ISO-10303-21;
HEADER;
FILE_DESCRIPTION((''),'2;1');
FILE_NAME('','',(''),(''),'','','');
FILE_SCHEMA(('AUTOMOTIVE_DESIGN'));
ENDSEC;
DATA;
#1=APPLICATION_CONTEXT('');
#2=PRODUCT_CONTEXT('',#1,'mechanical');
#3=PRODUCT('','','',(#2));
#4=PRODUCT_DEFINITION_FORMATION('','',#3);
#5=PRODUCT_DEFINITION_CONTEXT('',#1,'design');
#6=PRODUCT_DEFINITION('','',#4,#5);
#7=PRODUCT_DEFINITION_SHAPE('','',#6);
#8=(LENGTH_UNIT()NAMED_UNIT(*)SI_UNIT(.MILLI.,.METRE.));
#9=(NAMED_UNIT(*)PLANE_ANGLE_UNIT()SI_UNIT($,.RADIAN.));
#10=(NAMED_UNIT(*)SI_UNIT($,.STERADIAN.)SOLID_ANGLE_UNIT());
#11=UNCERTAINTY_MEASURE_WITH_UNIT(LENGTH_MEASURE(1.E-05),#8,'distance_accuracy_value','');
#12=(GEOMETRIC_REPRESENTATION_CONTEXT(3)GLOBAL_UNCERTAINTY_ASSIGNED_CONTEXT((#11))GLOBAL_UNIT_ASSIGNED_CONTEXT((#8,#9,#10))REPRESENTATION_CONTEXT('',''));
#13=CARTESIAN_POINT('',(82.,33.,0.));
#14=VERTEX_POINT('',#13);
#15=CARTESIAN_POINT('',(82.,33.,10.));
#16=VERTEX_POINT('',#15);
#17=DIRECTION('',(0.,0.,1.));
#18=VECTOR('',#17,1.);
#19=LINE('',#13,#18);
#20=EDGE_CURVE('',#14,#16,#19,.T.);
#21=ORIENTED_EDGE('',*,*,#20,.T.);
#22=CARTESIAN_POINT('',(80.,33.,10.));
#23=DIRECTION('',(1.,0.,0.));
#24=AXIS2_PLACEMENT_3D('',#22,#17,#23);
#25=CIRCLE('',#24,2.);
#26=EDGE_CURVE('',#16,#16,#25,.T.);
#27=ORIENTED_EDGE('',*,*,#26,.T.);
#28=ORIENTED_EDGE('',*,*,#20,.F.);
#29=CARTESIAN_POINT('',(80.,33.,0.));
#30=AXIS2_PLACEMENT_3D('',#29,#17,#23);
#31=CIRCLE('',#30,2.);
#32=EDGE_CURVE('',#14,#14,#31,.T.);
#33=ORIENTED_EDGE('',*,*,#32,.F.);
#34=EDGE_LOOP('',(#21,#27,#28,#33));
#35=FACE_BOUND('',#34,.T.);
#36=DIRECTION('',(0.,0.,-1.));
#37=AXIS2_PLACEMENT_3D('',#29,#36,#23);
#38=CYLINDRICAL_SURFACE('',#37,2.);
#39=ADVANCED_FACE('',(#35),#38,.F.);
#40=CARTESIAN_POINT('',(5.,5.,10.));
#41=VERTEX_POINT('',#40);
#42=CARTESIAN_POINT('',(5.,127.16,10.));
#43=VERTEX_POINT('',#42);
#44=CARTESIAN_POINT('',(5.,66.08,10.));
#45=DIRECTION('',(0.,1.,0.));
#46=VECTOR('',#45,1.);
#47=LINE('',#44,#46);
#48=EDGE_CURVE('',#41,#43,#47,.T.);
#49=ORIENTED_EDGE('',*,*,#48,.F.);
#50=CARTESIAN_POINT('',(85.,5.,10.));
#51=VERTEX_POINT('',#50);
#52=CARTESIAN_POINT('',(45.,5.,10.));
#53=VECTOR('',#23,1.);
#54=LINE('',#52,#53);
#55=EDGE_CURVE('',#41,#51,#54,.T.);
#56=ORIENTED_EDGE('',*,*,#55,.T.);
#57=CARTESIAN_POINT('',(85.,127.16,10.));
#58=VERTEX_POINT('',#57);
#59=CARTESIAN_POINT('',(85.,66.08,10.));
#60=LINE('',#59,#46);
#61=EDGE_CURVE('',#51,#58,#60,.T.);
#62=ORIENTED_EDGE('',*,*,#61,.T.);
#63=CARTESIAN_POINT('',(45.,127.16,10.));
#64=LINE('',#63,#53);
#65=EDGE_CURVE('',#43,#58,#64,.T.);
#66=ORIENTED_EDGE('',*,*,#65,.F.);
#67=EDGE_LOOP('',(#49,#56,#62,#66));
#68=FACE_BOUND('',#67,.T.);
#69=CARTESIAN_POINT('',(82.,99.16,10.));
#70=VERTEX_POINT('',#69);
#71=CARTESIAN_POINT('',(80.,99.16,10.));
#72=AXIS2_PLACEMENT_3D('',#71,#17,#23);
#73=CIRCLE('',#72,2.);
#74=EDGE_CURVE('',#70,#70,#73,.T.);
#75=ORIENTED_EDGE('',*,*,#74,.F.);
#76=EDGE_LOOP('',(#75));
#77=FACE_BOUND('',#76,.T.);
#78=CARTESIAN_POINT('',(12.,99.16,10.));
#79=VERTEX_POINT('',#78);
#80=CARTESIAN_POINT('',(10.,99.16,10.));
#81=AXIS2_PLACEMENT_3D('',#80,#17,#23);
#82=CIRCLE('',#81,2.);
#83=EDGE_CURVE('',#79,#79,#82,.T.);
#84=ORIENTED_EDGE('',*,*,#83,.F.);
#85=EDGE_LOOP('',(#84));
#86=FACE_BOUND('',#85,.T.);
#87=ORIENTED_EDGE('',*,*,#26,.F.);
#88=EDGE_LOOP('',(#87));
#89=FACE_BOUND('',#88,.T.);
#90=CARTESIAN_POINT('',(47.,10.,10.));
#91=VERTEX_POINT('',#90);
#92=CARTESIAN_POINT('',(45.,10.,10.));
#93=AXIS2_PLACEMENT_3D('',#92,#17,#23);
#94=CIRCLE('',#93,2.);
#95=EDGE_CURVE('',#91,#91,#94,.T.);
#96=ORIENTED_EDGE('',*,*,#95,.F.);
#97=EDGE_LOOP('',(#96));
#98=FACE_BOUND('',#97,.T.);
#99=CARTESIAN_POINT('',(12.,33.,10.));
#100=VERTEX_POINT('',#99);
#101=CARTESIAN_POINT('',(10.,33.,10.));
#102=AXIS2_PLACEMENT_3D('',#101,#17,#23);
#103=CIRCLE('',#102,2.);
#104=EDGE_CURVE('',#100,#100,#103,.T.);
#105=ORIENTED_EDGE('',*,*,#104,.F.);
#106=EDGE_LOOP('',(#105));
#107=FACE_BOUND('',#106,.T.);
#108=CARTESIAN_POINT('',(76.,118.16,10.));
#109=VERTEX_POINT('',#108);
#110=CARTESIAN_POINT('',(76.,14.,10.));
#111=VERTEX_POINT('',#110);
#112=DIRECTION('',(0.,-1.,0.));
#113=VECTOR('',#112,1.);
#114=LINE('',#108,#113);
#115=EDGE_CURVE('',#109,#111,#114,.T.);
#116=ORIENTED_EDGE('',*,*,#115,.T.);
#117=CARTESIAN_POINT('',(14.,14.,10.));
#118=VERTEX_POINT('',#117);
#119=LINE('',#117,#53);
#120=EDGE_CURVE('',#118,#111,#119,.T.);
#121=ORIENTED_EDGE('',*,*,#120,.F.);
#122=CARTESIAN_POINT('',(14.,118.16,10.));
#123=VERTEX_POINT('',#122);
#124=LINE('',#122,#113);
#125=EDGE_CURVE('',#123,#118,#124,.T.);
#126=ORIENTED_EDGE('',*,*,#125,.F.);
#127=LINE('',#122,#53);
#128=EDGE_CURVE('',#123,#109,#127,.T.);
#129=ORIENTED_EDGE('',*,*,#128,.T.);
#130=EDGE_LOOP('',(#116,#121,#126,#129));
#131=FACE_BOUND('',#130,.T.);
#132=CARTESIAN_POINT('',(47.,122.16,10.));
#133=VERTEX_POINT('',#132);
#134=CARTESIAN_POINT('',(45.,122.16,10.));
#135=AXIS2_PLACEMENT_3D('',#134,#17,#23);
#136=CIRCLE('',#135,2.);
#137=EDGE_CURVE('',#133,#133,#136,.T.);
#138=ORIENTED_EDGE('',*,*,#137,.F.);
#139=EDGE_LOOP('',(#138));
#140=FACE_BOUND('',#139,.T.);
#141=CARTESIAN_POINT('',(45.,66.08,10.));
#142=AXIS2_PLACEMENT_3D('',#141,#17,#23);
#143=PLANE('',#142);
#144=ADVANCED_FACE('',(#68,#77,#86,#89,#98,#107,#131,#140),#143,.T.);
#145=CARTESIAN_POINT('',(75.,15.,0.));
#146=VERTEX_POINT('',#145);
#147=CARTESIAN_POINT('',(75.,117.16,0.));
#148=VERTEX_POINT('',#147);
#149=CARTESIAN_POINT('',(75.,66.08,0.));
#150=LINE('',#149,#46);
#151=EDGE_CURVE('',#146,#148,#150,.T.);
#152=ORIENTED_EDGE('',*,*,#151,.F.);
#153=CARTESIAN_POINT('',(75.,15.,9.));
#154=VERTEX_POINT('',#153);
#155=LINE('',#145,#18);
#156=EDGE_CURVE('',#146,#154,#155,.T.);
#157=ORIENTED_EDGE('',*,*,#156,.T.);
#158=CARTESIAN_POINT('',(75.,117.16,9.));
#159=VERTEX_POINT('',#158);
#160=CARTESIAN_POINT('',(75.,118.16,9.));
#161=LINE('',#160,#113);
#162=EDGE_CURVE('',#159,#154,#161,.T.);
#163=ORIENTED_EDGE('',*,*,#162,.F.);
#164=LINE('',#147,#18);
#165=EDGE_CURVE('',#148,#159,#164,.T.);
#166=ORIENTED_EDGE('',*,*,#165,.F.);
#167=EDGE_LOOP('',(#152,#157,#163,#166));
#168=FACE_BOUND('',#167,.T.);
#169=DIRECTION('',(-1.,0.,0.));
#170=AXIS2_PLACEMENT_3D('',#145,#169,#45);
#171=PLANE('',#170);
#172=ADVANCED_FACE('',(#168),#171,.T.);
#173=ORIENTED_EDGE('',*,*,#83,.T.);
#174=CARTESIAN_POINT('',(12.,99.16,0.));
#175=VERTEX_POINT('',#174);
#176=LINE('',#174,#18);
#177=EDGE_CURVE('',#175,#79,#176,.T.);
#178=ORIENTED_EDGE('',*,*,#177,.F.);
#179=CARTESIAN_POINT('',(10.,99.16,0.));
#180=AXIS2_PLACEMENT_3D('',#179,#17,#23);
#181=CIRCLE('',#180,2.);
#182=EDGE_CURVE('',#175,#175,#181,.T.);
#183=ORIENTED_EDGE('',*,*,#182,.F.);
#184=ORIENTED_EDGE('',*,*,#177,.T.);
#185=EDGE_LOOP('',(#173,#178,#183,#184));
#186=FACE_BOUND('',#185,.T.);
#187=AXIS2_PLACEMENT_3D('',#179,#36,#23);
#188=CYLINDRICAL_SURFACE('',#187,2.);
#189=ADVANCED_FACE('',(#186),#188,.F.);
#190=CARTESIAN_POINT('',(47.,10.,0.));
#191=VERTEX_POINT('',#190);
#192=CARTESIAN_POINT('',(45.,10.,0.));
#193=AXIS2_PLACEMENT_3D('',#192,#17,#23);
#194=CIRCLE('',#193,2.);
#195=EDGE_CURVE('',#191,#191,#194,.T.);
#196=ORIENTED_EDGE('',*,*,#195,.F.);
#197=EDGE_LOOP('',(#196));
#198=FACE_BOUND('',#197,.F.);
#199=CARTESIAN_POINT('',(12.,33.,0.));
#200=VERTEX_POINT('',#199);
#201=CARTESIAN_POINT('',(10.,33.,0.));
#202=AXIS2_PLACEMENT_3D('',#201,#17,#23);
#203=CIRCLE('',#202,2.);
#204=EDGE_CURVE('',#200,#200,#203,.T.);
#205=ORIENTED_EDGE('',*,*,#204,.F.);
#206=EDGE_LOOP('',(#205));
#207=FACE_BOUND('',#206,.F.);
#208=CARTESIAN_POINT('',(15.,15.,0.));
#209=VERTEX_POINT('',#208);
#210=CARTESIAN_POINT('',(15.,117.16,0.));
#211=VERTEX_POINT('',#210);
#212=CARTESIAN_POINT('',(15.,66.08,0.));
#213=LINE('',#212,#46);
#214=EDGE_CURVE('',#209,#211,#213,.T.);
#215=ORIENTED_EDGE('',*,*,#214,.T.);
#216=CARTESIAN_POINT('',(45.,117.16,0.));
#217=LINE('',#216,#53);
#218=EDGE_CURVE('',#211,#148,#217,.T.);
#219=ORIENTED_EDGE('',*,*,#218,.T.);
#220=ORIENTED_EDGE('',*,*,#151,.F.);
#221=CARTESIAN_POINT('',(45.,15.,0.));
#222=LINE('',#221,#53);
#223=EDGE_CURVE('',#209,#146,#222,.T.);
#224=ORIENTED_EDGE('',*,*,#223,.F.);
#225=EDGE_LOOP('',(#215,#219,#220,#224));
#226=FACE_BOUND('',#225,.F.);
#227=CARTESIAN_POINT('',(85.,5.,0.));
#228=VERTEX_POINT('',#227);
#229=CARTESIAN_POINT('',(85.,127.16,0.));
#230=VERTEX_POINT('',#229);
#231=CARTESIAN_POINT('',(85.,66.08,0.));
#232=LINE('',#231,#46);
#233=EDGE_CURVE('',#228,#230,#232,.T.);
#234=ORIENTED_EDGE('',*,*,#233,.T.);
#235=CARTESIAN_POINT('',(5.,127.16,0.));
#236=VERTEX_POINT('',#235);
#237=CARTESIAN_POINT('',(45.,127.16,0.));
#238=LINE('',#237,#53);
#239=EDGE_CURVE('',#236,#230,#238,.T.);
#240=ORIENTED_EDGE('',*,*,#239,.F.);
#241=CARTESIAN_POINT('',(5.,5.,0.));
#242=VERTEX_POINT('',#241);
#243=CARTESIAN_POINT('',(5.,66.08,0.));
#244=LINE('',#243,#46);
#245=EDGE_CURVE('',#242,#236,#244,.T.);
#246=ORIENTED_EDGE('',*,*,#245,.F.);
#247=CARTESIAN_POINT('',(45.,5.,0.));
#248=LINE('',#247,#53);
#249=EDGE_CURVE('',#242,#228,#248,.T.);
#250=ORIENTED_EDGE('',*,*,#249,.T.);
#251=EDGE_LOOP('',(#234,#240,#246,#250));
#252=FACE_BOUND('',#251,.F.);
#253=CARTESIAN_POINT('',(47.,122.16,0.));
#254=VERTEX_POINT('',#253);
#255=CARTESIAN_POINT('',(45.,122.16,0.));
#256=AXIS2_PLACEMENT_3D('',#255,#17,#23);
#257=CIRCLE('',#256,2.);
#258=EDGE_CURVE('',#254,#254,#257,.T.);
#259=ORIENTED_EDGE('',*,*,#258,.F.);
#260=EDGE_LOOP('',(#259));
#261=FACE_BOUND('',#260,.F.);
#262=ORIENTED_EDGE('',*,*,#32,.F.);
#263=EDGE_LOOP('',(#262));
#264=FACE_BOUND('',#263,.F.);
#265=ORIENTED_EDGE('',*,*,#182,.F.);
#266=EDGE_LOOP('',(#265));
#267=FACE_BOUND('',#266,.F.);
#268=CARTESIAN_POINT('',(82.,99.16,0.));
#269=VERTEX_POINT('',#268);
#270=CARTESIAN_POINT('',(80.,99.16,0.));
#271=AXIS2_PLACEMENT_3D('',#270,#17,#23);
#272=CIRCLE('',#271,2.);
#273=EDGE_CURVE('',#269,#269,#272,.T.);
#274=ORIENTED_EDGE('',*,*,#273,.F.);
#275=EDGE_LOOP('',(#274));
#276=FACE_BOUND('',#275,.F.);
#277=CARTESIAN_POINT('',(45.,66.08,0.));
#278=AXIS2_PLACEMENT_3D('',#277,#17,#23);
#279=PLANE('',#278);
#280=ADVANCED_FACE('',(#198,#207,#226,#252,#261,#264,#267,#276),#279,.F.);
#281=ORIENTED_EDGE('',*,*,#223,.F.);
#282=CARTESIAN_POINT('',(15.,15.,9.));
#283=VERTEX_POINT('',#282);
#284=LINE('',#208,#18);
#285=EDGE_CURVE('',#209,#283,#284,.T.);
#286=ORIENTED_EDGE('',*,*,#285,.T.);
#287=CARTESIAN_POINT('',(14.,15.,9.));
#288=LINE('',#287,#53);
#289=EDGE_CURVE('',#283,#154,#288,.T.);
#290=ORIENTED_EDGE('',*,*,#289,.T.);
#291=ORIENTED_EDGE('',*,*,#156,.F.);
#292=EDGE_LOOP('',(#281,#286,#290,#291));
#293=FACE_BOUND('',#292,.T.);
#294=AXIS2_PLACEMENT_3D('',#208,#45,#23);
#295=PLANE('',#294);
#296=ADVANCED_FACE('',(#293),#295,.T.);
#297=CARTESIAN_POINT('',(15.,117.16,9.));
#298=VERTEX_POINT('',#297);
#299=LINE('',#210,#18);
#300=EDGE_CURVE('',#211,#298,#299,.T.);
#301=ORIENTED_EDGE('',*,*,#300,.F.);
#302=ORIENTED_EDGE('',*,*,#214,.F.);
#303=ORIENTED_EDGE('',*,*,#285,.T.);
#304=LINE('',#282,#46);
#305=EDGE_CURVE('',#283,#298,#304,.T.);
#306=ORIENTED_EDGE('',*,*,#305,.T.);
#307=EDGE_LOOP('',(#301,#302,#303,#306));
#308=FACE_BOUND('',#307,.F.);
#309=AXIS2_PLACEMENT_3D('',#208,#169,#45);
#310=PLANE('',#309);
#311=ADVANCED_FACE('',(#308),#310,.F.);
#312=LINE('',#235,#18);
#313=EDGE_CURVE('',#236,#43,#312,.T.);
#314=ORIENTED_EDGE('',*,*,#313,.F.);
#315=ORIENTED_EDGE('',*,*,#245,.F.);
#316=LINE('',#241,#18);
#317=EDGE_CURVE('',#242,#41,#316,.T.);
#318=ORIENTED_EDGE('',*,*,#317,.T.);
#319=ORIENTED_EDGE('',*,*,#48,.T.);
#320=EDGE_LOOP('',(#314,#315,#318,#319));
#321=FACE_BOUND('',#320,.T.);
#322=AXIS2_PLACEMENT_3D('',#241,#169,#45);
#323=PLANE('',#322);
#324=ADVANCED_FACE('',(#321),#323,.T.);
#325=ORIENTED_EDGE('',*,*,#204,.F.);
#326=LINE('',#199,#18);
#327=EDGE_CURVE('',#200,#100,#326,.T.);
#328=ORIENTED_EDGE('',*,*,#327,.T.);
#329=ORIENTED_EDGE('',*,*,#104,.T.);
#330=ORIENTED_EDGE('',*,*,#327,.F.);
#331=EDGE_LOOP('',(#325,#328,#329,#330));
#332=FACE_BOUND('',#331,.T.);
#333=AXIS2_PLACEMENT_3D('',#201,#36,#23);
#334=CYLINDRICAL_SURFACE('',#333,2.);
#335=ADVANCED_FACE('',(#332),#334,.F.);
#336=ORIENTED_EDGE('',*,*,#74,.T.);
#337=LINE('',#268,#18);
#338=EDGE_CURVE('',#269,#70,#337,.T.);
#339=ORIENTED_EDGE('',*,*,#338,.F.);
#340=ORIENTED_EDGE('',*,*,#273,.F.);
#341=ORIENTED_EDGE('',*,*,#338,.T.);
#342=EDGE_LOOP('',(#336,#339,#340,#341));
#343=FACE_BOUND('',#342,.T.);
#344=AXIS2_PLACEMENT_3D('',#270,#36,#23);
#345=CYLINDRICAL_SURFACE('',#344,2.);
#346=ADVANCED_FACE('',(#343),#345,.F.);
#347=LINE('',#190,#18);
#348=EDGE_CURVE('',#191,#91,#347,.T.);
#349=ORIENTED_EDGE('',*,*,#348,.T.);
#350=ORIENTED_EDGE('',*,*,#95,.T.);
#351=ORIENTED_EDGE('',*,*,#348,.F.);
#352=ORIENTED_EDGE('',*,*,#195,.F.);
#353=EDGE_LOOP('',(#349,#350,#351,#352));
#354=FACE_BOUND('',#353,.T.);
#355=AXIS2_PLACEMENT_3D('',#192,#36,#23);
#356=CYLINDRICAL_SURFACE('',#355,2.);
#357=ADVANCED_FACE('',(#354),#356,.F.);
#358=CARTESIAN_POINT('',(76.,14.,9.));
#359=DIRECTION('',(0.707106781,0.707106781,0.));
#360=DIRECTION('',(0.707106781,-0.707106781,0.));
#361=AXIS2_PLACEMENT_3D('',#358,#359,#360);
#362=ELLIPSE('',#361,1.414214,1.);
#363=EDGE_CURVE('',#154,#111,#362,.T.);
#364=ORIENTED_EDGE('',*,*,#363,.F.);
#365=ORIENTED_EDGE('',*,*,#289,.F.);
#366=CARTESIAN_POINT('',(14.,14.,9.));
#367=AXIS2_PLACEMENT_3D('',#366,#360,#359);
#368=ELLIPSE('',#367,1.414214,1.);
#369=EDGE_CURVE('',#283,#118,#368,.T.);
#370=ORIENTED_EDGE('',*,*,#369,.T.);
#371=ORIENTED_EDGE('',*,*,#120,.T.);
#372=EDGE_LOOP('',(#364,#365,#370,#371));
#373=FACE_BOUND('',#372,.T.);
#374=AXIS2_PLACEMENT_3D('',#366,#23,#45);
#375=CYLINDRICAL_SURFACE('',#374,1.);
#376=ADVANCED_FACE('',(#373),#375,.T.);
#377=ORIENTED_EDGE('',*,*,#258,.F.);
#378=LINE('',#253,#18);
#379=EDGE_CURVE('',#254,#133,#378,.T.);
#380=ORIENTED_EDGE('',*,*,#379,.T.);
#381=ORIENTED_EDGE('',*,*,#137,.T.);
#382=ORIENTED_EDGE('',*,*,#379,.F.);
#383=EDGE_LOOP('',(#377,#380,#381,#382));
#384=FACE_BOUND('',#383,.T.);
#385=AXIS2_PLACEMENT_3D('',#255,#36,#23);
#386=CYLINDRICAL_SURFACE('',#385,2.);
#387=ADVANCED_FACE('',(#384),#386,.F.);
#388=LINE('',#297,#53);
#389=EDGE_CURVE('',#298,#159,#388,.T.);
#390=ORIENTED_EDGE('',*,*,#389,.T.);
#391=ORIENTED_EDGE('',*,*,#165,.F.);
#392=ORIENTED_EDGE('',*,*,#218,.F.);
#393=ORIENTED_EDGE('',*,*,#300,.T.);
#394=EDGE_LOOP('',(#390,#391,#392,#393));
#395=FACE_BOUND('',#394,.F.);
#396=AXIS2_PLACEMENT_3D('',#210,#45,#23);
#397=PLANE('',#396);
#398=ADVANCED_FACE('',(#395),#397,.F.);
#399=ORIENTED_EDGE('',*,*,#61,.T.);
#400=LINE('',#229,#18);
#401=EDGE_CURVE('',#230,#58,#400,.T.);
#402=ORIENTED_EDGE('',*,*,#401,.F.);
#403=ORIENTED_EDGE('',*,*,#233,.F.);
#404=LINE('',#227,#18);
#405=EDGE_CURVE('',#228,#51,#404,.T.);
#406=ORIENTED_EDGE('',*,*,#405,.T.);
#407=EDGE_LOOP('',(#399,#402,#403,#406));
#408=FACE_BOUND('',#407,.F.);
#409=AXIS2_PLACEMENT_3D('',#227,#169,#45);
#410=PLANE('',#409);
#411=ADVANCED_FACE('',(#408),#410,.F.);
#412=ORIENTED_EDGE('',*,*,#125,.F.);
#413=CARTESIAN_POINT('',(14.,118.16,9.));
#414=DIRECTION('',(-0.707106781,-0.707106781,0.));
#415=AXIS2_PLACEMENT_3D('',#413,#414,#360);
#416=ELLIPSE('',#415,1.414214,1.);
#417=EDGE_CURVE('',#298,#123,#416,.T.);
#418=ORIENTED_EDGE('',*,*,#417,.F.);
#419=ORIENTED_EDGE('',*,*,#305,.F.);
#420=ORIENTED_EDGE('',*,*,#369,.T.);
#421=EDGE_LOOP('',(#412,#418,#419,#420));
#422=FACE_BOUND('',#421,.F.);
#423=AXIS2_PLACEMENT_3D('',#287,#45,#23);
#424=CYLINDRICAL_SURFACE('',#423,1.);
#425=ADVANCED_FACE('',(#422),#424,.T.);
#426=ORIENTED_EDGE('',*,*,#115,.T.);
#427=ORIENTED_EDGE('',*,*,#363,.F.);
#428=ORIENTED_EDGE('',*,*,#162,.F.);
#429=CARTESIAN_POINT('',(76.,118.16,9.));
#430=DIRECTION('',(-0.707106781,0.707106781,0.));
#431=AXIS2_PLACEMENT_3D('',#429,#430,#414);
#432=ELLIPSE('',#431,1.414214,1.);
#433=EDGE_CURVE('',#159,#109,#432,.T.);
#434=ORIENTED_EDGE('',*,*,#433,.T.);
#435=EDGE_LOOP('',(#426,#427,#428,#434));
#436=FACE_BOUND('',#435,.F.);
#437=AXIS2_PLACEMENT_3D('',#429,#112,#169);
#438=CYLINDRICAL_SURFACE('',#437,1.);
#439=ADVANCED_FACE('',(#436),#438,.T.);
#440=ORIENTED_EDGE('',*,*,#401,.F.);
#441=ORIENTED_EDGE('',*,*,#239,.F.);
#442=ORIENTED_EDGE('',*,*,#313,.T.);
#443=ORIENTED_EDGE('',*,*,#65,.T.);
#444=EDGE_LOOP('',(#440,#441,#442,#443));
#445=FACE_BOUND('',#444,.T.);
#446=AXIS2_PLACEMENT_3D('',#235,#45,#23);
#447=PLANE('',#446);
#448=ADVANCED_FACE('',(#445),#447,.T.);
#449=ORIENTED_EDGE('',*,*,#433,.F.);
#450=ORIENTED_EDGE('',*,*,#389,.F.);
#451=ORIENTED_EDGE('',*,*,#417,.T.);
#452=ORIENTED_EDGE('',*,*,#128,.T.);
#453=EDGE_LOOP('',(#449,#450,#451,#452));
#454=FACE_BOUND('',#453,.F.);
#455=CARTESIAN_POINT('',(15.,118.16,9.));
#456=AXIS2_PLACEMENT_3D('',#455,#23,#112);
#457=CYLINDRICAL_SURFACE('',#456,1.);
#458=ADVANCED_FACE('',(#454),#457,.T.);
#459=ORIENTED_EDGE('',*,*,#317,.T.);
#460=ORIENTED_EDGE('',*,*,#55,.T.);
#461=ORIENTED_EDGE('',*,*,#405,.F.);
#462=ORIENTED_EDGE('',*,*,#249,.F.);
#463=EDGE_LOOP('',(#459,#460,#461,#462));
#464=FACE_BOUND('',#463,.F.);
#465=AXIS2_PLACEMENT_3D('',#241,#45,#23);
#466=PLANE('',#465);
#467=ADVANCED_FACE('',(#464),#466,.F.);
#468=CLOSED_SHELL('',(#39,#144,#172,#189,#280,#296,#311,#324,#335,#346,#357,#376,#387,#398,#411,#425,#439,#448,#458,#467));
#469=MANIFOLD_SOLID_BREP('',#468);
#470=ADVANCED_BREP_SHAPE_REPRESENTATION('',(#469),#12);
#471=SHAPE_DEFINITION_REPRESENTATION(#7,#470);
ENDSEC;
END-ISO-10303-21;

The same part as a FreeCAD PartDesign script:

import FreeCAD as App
import Part
import Sketcher
from FreeCAD import Vector
Q = App.Units.Quantity


def edges_at(feature, points):
    """Names of the edges that pass closest to the given points."""
    edges = feature.Shape.Edges
    near = lambda p: min(range(len(edges)), key=lambda i: edges[i].distToShape(Part.Vertex(*p))[0])
    return sorted({f"Edge{near(p) + 1}" for p in points})

doc = App.newDocument("Part")
body = doc.addObject("PartDesign::Body", "Body")

# Sketch on XY plane
sketch1 = body.newObject("Sketcher::SketchObject", "Sketch")
sketch1.AttachmentSupport = (doc.getObject("XY_Plane"), [""])
sketch1.MapMode = "FlatFace"
sketch1.addGeometry(Part.LineSegment(Vector(5, 127.2, 0), Vector(5, 5, 0)), False)
sketch1.addGeometry(Part.LineSegment(Vector(5, 5, 0), Vector(85, 5, 0)), False)
sketch1.addGeometry(Part.LineSegment(Vector(85, 5, 0), Vector(85, 127.2, 0)), False)
sketch1.addGeometry(Part.LineSegment(Vector(85, 127.2, 0), Vector(5, 127.2, 0)), False)
sketch1.addGeometry(Part.Circle(Vector(10, 33, 0), Vector(0, 0, 1), 2), False)
sketch1.addGeometry(Part.Circle(Vector(45, 10, 0), Vector(0, 0, 1), 2), False)
sketch1.addGeometry(Part.Circle(Vector(80, 33, 0), Vector(0, 0, 1), 2), False)
sketch1.addGeometry(Part.Circle(Vector(10, 99.2, 0), Vector(0, 0, 1), 2), False)
sketch1.addGeometry(Part.LineSegment(Vector(75, 15, 0), Vector(15, 15, 0)), False)
sketch1.addGeometry(Part.LineSegment(Vector(15, 15, 0), Vector(15, 117.2, 0)), False)
sketch1.addGeometry(Part.LineSegment(Vector(15, 117.2, 0), Vector(75, 117.2, 0)), False)
sketch1.addGeometry(Part.LineSegment(Vector(75, 117.2, 0), Vector(75, 15, 0)), False)
sketch1.addGeometry(Part.Circle(Vector(45, 122.2, 0), Vector(0, 0, 1), 2), False)
sketch1.addGeometry(Part.Circle(Vector(80, 99.2, 0), Vector(0, 0, 1), 2), False)
sketch1.addConstraint(Sketcher.Constraint("Coincident", 0, 2, 1, 1))
sketch1.addConstraint(Sketcher.Constraint("Coincident", 1, 2, 2, 1))
sketch1.addConstraint(Sketcher.Constraint("Coincident", 2, 2, 3, 1))
sketch1.addConstraint(Sketcher.Constraint("Coincident", 3, 2, 0, 1))
sketch1.addConstraint(Sketcher.Constraint("Coincident", 8, 2, 9, 1))
sketch1.addConstraint(Sketcher.Constraint("Coincident", 9, 2, 10, 1))
sketch1.addConstraint(Sketcher.Constraint("Coincident", 10, 2, 11, 1))
sketch1.addConstraint(Sketcher.Constraint("Coincident", 11, 2, 8, 1))
sketch1.addConstraint(Sketcher.Constraint("Vertical", 0))
sketch1.addConstraint(Sketcher.Constraint("Horizontal", 1))
sketch1.addConstraint(Sketcher.Constraint("Vertical", 2))
sketch1.addConstraint(Sketcher.Constraint("Horizontal", 3))
sketch1.addConstraint(Sketcher.Constraint("Horizontal", 8))
sketch1.addConstraint(Sketcher.Constraint("Vertical", 9))
sketch1.addConstraint(Sketcher.Constraint("Horizontal", 10))
sketch1.addConstraint(Sketcher.Constraint("Vertical", 11))
sketch1.addConstraint(Sketcher.Constraint("Equal", 4, 5))
sketch1.addConstraint(Sketcher.Constraint("Equal", 5, 6))
sketch1.addConstraint(Sketcher.Constraint("Equal", 6, 7))
sketch1.addConstraint(Sketcher.Constraint("Equal", 7, 12))
sketch1.addConstraint(Sketcher.Constraint("Equal", 12, 13))
sketch1.addConstraint(Sketcher.Constraint("Horizontal", 4, 3, 6, 3))
sketch1.addConstraint(Sketcher.Constraint("Horizontal", 7, 3, 13, 3))
sketch1.addConstraint(Sketcher.Constraint("Vertical", 4, 3, 7, 3))
sketch1.addConstraint(Sketcher.Constraint("Vertical", 5, 3, 12, 3))
sketch1.addConstraint(Sketcher.Constraint("Vertical", 6, 3, 13, 3))
sketch1.addConstraint(Sketcher.Constraint("Diameter", 4, Q("4 mm")))
sketch1.addConstraint(Sketcher.Constraint("DistanceX", 1, 1, 1, 2, Q("80 mm")))
sketch1.addConstraint(Sketcher.Constraint("DistanceX", 8, 2, 8, 1, Q("60 mm")))
sketch1.addConstraint(Sketcher.Constraint("DistanceX", -1, 1, 4, 3, Q("10 mm")))
sketch1.addConstraint(Sketcher.Constraint("DistanceY", -1, 1, 4, 3, Q("33 mm")))
sketch1.addConstraint(Sketcher.Constraint("DistanceX", -1, 1, 5, 3, Q("45 mm")))
sketch1.addConstraint(Sketcher.Constraint("DistanceY", -1, 1, 5, 3, Q("10 mm")))
sketch1.addConstraint(Sketcher.Constraint("DistanceX", -1, 1, 6, 3, Q("80 mm")))
sketch1.addConstraint(Sketcher.Constraint("DistanceX", -1, 1, 0, 2, Q("5 mm")))
sketch1.addConstraint(Sketcher.Constraint("DistanceY", -1, 1, 0, 2, Q("5 mm")))
sketch1.addConstraint(Sketcher.Constraint("DistanceX", -1, 1, 8, 2, Q("15 mm")))
sketch1.addConstraint(Sketcher.Constraint("DistanceY", -1, 1, 8, 2, Q("15 mm")))
sketch1.addConstraint(Sketcher.Constraint("DistanceY", 7, 3, 12, 3, Q("23 mm")))
sketch1.addConstraint(Sketcher.Constraint("DistanceY", 13, 3, 2, 2, Q("28 mm")))
sketch1.addConstraint(Sketcher.Constraint("DistanceY", 9, 2, 3, 2, Q("10 mm")))
sketch1.addConstraint(Sketcher.Constraint("DistanceY", 0, 2, 0, 1, Q("122.16 mm")))
pad1 = body.newObject("PartDesign::Pad", "Pad")
pad1.Profile = sketch1
pad1.Length = 10
doc.recompute()

fillet = body.newObject("PartDesign::Fillet", "Fillet")
fillet.Base = (pad1, edges_at(pad1, [(45, 117.16, 10), (15, 66.08, 10)]))
fillet.Radius = 1
doc.recompute()

fillet2 = body.newObject("PartDesign::Fillet", "Fillet001")
fillet2.Base = (fillet, edges_at(fillet, [(44.5, 15, 10), (75, 66.58, 10)]))
fillet2.Radius = 1

doc.recompute()
